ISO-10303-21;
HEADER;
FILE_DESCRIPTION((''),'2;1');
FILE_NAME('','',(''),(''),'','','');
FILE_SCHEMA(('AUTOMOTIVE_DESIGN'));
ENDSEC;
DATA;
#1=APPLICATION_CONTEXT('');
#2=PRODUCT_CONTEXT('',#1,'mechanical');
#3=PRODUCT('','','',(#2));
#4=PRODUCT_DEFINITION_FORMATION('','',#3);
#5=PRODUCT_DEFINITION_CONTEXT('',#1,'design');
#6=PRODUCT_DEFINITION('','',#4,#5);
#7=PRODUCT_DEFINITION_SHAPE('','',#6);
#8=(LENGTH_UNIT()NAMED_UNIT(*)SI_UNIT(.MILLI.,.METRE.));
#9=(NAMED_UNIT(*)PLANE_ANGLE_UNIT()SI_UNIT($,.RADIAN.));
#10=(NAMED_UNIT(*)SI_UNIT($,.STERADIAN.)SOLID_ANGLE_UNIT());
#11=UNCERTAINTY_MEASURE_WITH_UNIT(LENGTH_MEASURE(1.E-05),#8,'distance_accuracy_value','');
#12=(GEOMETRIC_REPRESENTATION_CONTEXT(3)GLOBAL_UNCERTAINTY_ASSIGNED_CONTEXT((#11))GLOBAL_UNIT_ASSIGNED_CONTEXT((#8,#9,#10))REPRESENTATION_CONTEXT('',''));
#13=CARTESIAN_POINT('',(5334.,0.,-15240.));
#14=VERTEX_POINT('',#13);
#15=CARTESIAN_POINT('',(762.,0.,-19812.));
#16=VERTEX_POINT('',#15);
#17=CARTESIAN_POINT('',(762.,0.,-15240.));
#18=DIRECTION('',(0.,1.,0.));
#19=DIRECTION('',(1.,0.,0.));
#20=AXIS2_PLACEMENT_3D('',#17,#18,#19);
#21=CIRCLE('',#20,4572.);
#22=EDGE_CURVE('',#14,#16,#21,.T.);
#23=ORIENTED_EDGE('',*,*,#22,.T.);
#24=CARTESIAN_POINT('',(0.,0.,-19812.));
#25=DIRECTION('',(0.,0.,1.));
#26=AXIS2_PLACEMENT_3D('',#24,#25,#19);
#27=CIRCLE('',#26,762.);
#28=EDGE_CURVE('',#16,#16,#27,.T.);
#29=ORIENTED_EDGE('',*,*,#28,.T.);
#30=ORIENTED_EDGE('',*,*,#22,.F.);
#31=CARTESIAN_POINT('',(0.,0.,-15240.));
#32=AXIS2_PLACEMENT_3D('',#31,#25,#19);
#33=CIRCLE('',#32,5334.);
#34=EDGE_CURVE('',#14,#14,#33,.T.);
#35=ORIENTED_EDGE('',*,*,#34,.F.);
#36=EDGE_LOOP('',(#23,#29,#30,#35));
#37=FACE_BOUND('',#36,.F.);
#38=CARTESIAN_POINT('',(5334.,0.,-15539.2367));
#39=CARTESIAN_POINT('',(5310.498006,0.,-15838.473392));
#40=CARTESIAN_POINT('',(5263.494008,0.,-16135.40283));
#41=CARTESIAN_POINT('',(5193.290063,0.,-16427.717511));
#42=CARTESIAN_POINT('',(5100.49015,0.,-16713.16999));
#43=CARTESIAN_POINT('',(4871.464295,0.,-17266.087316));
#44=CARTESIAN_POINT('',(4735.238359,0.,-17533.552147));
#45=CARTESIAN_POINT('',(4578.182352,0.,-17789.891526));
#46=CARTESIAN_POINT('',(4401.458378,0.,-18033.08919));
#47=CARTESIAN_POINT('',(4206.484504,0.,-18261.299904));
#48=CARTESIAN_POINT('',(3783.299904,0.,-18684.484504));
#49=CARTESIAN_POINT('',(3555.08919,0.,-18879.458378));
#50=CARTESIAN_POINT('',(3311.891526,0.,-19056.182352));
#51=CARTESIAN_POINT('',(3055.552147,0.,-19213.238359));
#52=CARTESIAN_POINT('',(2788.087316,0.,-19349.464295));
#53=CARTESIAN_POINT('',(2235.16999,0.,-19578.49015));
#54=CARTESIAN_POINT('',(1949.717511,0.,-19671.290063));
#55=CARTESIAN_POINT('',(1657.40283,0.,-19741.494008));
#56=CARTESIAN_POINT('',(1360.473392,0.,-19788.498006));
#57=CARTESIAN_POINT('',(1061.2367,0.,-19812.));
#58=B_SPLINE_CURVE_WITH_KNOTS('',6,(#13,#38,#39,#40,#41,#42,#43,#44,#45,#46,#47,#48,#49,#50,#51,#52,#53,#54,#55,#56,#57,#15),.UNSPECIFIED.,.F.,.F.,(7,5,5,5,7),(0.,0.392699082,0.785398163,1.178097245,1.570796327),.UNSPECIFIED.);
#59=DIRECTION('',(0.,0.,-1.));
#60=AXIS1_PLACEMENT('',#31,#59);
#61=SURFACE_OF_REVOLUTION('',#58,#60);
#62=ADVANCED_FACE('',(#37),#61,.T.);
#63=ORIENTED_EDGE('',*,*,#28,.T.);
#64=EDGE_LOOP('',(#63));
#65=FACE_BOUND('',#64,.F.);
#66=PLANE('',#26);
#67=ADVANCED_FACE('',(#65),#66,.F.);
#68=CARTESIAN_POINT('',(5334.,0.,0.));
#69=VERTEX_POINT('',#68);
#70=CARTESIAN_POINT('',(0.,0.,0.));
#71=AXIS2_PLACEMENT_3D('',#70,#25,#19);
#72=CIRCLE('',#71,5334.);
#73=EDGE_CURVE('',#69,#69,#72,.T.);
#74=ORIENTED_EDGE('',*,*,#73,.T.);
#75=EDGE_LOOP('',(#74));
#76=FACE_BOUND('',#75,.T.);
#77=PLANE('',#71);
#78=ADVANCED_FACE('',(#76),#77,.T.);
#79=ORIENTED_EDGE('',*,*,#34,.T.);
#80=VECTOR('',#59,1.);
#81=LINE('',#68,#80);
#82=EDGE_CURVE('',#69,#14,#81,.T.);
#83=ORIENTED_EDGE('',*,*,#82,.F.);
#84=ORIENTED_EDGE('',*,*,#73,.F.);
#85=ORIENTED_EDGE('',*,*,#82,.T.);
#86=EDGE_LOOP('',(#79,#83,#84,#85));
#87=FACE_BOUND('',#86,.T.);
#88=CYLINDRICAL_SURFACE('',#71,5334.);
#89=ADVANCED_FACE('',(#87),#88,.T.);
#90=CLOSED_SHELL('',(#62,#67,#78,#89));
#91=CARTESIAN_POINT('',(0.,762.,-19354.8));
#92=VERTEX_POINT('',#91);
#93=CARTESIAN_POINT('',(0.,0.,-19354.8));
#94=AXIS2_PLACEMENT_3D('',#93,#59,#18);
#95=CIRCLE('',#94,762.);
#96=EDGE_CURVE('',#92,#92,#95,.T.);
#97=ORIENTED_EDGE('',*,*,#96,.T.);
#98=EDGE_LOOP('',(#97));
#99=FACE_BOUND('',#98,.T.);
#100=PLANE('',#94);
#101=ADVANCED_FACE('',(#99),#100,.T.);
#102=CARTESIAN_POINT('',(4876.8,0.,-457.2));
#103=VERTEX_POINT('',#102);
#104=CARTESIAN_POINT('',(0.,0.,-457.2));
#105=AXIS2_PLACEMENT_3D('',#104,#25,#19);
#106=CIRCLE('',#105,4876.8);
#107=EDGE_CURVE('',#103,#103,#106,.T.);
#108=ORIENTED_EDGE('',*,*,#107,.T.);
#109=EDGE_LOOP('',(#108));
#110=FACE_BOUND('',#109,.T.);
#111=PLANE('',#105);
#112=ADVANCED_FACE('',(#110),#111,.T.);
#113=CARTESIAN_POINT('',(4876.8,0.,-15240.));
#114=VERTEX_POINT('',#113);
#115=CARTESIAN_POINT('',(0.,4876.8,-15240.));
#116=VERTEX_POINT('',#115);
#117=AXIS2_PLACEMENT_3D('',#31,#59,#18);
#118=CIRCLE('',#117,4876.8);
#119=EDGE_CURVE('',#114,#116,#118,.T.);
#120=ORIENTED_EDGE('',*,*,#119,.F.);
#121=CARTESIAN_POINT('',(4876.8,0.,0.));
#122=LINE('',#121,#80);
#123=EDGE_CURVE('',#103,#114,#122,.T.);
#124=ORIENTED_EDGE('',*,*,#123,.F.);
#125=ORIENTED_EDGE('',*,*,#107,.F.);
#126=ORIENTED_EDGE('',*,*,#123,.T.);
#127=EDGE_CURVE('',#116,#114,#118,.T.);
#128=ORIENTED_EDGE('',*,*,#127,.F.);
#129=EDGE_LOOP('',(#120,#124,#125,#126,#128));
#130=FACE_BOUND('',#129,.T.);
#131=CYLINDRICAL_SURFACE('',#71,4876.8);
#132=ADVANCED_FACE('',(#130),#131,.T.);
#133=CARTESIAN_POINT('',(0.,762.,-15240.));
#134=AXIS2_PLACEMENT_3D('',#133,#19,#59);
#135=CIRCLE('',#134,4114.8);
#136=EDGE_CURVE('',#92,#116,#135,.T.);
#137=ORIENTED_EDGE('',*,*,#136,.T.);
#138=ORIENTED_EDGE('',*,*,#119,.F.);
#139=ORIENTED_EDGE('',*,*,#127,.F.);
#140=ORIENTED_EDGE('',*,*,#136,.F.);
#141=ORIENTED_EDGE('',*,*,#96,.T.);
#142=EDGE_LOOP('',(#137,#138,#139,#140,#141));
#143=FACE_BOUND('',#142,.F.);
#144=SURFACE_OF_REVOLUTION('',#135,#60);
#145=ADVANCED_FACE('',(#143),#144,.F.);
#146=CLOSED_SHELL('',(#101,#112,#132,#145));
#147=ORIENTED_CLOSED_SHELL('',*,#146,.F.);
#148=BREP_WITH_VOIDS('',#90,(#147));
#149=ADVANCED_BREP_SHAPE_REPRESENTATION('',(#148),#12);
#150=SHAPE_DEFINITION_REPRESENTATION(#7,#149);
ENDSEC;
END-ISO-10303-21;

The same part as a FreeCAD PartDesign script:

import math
import FreeCAD as App
import Part
import Sketcher
from FreeCAD import Vector
Q = App.Units.Quantity


def edges_at(feature, points):
    """Names of the edges that pass closest to the given points."""
    edges = feature.Shape.Edges
    near = lambda p: min(range(len(edges)), key=lambda i: edges[i].distToShape(Part.Vertex(*p))[0])
    return sorted({f"Edge{near(p) + 1}" for p in points})

doc = App.newDocument("Part")
body = doc.addObject("PartDesign::Body", "Body")

# Sketch on XY plane
sketch1 = body.newObject("Sketcher::SketchObject", "Sketch")
sketch1.AttachmentSupport = (doc.getObject("XY_Plane"), [""])
sketch1.MapMode = "FlatFace"
sketch1.addGeometry(Part.Circle(Vector(0, 0, 0), Vector(0, 0, 1), 5334), False)
sketch1.addConstraint([
    Sketcher.Constraint("Coincident", 0, 3, -1, 1),
    Sketcher.Constraint("Diameter", 0, Q("420 in")),
])
pad1 = body.newObject("PartDesign::Pad", "Pad")
pad1.Profile = sketch1
pad1.Length = Q("780 in")
pad1.Reversed = True
doc.recompute()

fillet = body.newObject("PartDesign::Fillet", "Fillet")
fillet.Base = (pad1, edges_at(pad1, [(-5334, 0, -19812)]))
fillet.Radius = Q("180 in")

# Sketch on YZ plane
sketch2 = body.newObject("Sketcher::SketchObject", "Sketch001")
sketch2.AttachmentSupport = (doc.getObject("YZ_Plane"), [""])
sketch2.MapMode = "FlatFace"
sketch2.addGeometry([
    Part.LineSegment(Vector(4877, -15240, 0), Vector(0, -15240, 0)),
    Part.LineSegment(Vector(0, -15240, 0), Vector(0, -19355, 0)),
    Part.LineSegment(Vector(0, -19355, 0), Vector(762, -19355, 0)),
    Part.ArcOfCircle(Part.Circle(Vector(762, -15240, 0), Vector(0, 0, 1), 4115), math.radians(-90), math.radians(0)),
], False)
sketch2.addConstraint([
    Sketcher.Constraint("Coincident", 0, 2, 1, 1),
    Sketcher.Constraint("Coincident", 1, 2, 2, 1),
    Sketcher.Constraint("Coincident", 2, 2, 3, 1),
    Sketcher.Constraint("Coincident", 3, 2, 0, 1),
    Sketcher.Constraint("Horizontal", 0),
    Sketcher.Constraint("Vertical", 1),
    Sketcher.Constraint("Horizontal", 2),
    Sketcher.Constraint("PointOnObject", 0, 2, -2),
    Sketcher.Constraint("Horizontal", 3, 3, 0, 2),
    Sketcher.Constraint("Vertical", 3, 3, 2, 2),
    Sketcher.Constraint("Radius", 3, Q("162 in")),
    Sketcher.Constraint("DistanceX", 0, 2, 0, 1, Q("192 in")),
    Sketcher.Constraint("DistanceY", 3, 3, -1, 1, Q("600 in")),
])
groove = body.newObject("PartDesign::Groove", "Groove")
groove.Profile = sketch2
groove.ReferenceAxis = (sketch2, ["V_Axis"])
groove.Angle = 360

# Sketch on XY plane
sketch3 = body.newObject("Sketcher::SketchObject", "Sketch002")
sketch3.AttachmentSupport = (doc.getObject("XY_Plane"), [""])
sketch3.MapMode = "FlatFace"
sketch3.addGeometry(Part.Circle(Vector(0, 0, 0), Vector(0, 0, 1), 4877), False)
sketch3.addConstraint([
    Sketcher.Constraint("Coincident", 0, 3, -1, 1),
    Sketcher.Constraint("Diameter", 0, Q("384 in")),
])
pocket1 = body.newObject("PartDesign::Pocket", "Pocket")
pocket1.Profile = sketch3
pocket1.Length = Q("600 in")

# Sketch on XY plane
sketch4 = body.newObject("Sketcher::SketchObject", "Sketch003")
sketch4.AttachmentSupport = (doc.getObject("XY_Plane"), [""])
sketch4.MapMode = "FlatFace"
sketch4.addGeometry(Part.Circle(Vector(0, 0, 0), Vector(0, 0, 1), 5334), False)
sketch4.addConstraint([
    Sketcher.Constraint("Coincident", 0, 3, -1, 1),
    Sketcher.Constraint("Diameter", 0, Q("420 in")),
])
pad2 = body.newObject("PartDesign::Pad", "Pad001")
pad2.Profile = sketch4
pad2.Length = Q("18 in")
pad2.Reversed = True

doc.recompute()
